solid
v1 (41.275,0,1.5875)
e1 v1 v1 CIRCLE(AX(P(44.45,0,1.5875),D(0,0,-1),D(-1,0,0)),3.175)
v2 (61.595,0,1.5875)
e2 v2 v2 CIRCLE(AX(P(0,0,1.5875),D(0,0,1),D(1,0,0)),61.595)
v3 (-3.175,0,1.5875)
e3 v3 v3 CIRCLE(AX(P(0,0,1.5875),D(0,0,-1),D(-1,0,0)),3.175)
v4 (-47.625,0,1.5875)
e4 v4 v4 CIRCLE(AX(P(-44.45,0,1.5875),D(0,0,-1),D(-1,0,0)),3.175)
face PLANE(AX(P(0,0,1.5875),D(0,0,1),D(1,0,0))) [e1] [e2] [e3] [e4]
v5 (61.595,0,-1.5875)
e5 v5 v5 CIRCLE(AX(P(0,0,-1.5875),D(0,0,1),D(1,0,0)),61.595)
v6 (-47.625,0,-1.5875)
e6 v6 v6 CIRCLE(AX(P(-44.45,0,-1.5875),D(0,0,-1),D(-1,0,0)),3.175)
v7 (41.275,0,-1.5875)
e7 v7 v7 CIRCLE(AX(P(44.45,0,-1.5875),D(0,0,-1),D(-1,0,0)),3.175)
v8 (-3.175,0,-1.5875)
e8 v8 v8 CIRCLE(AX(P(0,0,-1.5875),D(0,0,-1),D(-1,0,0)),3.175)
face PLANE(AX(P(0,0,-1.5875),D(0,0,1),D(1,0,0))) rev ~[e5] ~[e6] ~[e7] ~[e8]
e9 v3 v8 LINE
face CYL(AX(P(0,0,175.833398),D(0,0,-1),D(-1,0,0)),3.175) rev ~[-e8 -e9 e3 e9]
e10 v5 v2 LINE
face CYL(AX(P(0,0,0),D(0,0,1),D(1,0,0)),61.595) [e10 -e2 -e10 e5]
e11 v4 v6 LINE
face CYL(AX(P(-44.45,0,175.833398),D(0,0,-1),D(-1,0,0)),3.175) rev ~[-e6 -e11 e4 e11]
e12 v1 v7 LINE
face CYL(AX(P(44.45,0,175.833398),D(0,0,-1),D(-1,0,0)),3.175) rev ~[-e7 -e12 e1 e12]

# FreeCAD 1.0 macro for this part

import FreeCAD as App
import Part
import Sketcher
from FreeCAD import Vector
Q = App.Units.Quantity

doc = App.newDocument("Part")
body = doc.addObject("PartDesign::Body", "Body")

# Sketch on XY plane
sketch1 = body.newObject("Sketcher::SketchObject", "Sketch")
sketch1.AttachmentSupport = (doc.getObject("XY_Plane"), [""])
sketch1.MapMode = "FlatFace"
sketch1.addGeometry(Part.Circle(Vector(0, 0, 0), Vector(0, 0, 1), 61.595), False)
sketch1.addConstraint(Sketcher.Constraint("Coincident", 0, 3, -1, 1))
sketch1.addConstraint(Sketcher.Constraint("Diameter", 0, Q("4.85 in")))
pad1 = body.newObject("PartDesign::Pad", "Pad")
pad1.Profile = sketch1
pad1.Length = Q("0.125 in")
pad1.Midplane = True

# Sketch on XY plane
sketch2 = body.newObject("Sketcher::SketchObject", "Sketch001")
sketch2.AttachmentSupport = (doc.getObject("XY_Plane"), [""])
sketch2.MapMode = "FlatFace"
sketch2.AttachmentOffset = App.Placement(Vector(0, 0, 0.0625 * 25.4), App.Rotation())
sketch2.addGeometry(Part.Circle(Vector(-44.45, 0, 0), Vector(0, 0, 1), 3.175), False)
sketch2.addGeometry(Part.Circle(Vector(0, 0, 0), Vector(0, 0, 1), 3.175), False)
sketch2.addGeometry(Part.Circle(Vector(44.45, 0, 0), Vector(0, 0, 1), 3.175), False)
sketch2.addConstraint(Sketcher.Constraint("Coincident", 1, 3, -1, 1))
sketch2.addConstraint(Sketcher.Constraint("Equal", 0, 1))
sketch2.addConstraint(Sketcher.Constraint("Equal", 1, 2))
sketch2.addConstraint(Sketcher.Constraint("Symmetric", 0, 3, 2, 3, -1, 1))
sketch2.addConstraint(Sketcher.Constraint("PointOnObject", 0, 3, -1))
sketch2.addConstraint(Sketcher.Constraint("Diameter", 0, Q("0.25 in")))
sketch2.addConstraint(Sketcher.Constraint("DistanceX", 0, 3, 2, 3, Q("3.5 in")))
doc.recompute()
hole = body.newObject("PartDesign::Hole", "Hole")
hole.Profile = sketch2
hole.ThreadType = "None"
hole.Diameter = Q("0.25 in")
hole.DepthType = "ThroughAll"

doc.recompute()
